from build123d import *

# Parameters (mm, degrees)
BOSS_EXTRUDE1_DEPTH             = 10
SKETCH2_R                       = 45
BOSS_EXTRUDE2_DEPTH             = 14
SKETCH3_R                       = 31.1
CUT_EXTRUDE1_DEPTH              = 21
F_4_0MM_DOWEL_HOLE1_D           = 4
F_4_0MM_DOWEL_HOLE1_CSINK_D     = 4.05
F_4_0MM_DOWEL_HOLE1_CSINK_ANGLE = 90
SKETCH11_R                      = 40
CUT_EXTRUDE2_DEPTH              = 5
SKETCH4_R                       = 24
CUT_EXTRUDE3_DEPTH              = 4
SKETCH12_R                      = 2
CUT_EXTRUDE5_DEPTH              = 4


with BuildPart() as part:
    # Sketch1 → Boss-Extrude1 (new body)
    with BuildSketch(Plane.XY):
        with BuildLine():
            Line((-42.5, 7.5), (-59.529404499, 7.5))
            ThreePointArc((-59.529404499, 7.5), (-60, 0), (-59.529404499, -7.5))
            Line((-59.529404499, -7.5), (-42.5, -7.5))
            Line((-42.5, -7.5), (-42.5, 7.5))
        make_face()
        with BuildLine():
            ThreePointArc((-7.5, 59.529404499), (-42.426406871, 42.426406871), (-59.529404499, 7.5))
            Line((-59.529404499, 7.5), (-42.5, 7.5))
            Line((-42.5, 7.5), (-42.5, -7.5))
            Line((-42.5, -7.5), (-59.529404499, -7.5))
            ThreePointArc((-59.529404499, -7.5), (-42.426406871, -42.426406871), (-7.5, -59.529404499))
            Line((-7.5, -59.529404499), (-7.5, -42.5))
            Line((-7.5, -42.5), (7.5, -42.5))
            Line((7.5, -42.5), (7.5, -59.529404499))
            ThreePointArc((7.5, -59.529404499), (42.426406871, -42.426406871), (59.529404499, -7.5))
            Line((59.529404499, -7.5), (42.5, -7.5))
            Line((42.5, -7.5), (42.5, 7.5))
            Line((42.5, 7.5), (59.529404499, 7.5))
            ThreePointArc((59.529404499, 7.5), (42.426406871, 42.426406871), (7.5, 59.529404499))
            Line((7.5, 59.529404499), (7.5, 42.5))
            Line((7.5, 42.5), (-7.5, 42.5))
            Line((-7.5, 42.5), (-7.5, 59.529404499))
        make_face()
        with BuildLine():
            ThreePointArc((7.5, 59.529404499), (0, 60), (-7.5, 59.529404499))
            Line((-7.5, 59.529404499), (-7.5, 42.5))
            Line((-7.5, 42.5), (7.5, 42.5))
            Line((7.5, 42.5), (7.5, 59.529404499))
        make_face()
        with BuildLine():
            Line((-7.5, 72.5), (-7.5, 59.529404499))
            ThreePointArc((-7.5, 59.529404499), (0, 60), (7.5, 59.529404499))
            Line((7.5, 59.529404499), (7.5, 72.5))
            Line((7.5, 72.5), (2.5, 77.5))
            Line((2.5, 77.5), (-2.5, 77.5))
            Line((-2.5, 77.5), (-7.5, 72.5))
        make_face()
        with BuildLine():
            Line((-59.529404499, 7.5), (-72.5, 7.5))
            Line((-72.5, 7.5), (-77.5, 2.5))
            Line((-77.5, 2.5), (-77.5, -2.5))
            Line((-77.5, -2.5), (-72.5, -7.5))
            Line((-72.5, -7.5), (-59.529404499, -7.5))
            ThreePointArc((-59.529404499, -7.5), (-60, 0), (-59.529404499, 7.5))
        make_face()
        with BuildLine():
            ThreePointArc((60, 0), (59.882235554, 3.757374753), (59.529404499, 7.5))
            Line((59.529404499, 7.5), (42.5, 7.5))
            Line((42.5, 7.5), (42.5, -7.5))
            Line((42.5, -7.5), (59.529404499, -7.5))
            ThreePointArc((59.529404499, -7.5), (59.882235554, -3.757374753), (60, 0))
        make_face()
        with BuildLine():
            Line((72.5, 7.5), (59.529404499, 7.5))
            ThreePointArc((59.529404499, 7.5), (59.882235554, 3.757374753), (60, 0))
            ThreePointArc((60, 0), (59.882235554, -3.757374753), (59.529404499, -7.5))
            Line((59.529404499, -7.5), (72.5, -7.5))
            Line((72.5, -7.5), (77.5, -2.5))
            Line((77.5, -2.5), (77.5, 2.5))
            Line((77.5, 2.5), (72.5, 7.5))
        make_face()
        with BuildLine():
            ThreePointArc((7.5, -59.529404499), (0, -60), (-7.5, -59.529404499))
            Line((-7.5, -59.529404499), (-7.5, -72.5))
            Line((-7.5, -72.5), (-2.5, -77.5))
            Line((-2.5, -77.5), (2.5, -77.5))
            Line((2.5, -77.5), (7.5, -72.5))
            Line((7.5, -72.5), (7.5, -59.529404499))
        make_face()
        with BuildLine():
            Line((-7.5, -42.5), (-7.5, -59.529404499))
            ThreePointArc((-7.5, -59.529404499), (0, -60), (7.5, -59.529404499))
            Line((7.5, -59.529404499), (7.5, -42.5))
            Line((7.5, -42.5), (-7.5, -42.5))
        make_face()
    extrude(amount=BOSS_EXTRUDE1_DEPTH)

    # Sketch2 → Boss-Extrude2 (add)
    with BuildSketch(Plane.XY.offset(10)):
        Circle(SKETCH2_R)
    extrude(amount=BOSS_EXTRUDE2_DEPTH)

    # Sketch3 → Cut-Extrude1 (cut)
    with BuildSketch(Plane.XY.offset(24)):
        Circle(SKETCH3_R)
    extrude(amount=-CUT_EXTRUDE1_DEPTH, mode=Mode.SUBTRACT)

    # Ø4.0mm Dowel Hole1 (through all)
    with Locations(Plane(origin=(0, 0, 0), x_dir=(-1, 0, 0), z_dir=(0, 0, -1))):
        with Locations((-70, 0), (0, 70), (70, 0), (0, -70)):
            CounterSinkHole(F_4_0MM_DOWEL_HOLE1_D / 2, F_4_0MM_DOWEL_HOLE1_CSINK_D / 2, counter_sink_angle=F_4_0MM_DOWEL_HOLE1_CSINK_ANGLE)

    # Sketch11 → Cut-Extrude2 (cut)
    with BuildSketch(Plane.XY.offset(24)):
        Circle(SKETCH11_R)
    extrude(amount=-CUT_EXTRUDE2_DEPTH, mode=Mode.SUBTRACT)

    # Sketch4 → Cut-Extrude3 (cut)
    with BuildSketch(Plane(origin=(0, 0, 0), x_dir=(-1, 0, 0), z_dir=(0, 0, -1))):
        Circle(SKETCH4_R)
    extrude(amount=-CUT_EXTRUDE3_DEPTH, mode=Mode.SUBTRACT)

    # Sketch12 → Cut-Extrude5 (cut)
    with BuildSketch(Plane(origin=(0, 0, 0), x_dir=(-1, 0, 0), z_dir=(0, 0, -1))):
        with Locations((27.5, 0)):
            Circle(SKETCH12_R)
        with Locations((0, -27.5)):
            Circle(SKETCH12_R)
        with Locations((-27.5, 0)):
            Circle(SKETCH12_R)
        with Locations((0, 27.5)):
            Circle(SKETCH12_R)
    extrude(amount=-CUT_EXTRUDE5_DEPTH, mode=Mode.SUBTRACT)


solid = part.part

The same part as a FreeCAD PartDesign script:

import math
import FreeCAD as App
import Part
import Sketcher

V = App.Vector

doc = App.newDocument("Part")
body = doc.addObject("PartDesign::Body", "Body")

# Sketch on XY plane
sketch1 = body.newObject("Sketcher::SketchObject", "Sketch")
sketch1.AttachmentSupport = (doc.getObject("XY_Plane"), [""])
sketch1.MapMode = "FlatFace"
sketch1.addGeometry([
    Part.ArcOfCircle(Part.Circle(V(0, 0, 0), V(0, 0, 1), 60), math.radians(-173), math.radians(-97)),  # 0
    Part.LineSegment(V(-8, -60, 0), V(-8, -72, 0)),  # 1
    Part.LineSegment(V(-8, -72, 0), V(-2, -78, 0)),  # 2
    Part.LineSegment(V(-2, -78, 0), V(2, -78, 0)),  # 3
    Part.LineSegment(V(2, -78, 0), V(8, -72, 0)),  # 4
    Part.LineSegment(V(8, -72, 0), V(8, -60, 0)),  # 5
    Part.ArcOfCircle(Part.Circle(V(0, 0, 0), V(0, 0, 1), 60), math.radians(-83), math.radians(-7)),  # 6
    Part.LineSegment(V(60, -8, 0), V(72, -8, 0)),  # 7
    Part.LineSegment(V(72, -8, 0), V(78, -2, 0)),  # 8
    Part.LineSegment(V(78, -2, 0), V(78, 2, 0)),  # 9
    Part.LineSegment(V(78, 2, 0), V(72, 8, 0)),  # 10
    Part.LineSegment(V(72, 8, 0), V(60, 8, 0)),  # 11
    Part.ArcOfCircle(Part.Circle(V(0, 0, 0), V(0, 0, 1), 60), math.radians(7), math.radians(83)),  # 12
    Part.LineSegment(V(8, 60, 0), V(8, 72, 0)),  # 13
    Part.LineSegment(V(8, 72, 0), V(2, 78, 0)),  # 14
    Part.LineSegment(V(2, 78, 0), V(-2, 78, 0)),  # 15
    Part.LineSegment(V(-2, 78, 0), V(-8, 72, 0)),  # 16
    Part.LineSegment(V(-8, 72, 0), V(-8, 60, 0)),  # 17
    Part.ArcOfCircle(Part.Circle(V(0, 0, 0), V(0, 0, 1), 60), math.radians(97), math.radians(173)),  # 18
    Part.LineSegment(V(-60, 8, 0), V(-72, 8, 0)),  # 19
    Part.LineSegment(V(-72, 8, 0), V(-78, 2, 0)),  # 20
    Part.LineSegment(V(-78, 2, 0), V(-78, -2, 0)),  # 21
    Part.LineSegment(V(-78, -2, 0), V(-72, -8, 0)),  # 22
    Part.LineSegment(V(-72, -8, 0), V(-60, -8, 0)),  # 23
], False)
sketch1.addConstraint([
    Sketcher.Constraint("Coincident", 0, 2, 1, 1),
    Sketcher.Constraint("Coincident", 1, 2, 2, 1),
    Sketcher.Constraint("Coincident", 2, 2, 3, 1),
    Sketcher.Constraint("Coincident", 3, 2, 4, 1),
    Sketcher.Constraint("Coincident", 4, 2, 5, 1),
    Sketcher.Constraint("Coincident", 5, 2, 6, 1),
    Sketcher.Constraint("Coincident", 6, 2, 7, 1),
    Sketcher.Constraint("Coincident", 7, 2, 8, 1),
    Sketcher.Constraint("Coincident", 8, 2, 9, 1),
    Sketcher.Constraint("Coincident", 9, 2, 10, 1),
    Sketcher.Constraint("Coincident", 10, 2, 11, 1),
    Sketcher.Constraint("Coincident", 11, 2, 12, 1),
    Sketcher.Constraint("Coincident", 12, 2, 13, 1),
    Sketcher.Constraint("Coincident", 13, 2, 14, 1),
    Sketcher.Constraint("Coincident", 14, 2, 15, 1),
    Sketcher.Constraint("Coincident", 15, 2, 16, 1),
    Sketcher.Constraint("Coincident", 16, 2, 17, 1),
    Sketcher.Constraint("Coincident", 17, 2, 18, 1),
    Sketcher.Constraint("Coincident", 18, 2, 19, 1),
    Sketcher.Constraint("Coincident", 19, 2, 20, 1),
    Sketcher.Constraint("Coincident", 20, 2, 21, 1),
    Sketcher.Constraint("Coincident", 21, 2, 22, 1),
    Sketcher.Constraint("Coincident", 22, 2, 23, 1),
    Sketcher.Constraint("Coincident", 23, 2, 0, 1),
    Sketcher.Constraint("Vertical", 1),
    Sketcher.Constraint("Horizontal", 3),
    Sketcher.Constraint("Vertical", 5),
    Sketcher.Constraint("Horizontal", 7),
    Sketcher.Constraint("Vertical", 9),
    Sketcher.Constraint("Horizontal", 11),
    Sketcher.Constraint("Vertical", 13),
    Sketcher.Constraint("Horizontal", 15),
    Sketcher.Constraint("Vertical", 17),
    Sketcher.Constraint("Horizontal", 19),
    Sketcher.Constraint("Vertical", 21),
    Sketcher.Constraint("Horizontal", 23),
    Sketcher.Constraint("Coincident", 0, 3, -1, 1),
    Sketcher.Constraint("Coincident", 6, 3, -1, 1),
    Sketcher.Constraint("Coincident", 12, 3, -1, 1),
    Sketcher.Constraint("Coincident", 18, 3, -1, 1),
    Sketcher.Constraint("Equal", 0, 6),
    Sketcher.Constraint("Equal", 6, 12),
    Sketcher.Constraint("Equal", 12, 18),
    Sketcher.Constraint("Symmetric", 1, 2, 13, 2, -1, 1),
    Sketcher.Constraint("Symmetric", 2, 2, 14, 2, -1, 1),
    Sketcher.Constraint("Symmetric", 4, 2, 16, 2, -1, 1),
    Sketcher.Constraint("Symmetric", 7, 2, 19, 2, -1, 1),
    Sketcher.Constraint("Symmetric", 8, 2, 20, 2, -1, 1),
    Sketcher.Constraint("Symmetric", 10, 2, 22, 2, -1, 1),
    Sketcher.Constraint("Symmetric", 1, 2, 4, 2, -2),
    Sketcher.Constraint("Symmetric", 10, 2, 19, 2, -2),
    Sketcher.Constraint("Perpendicular", 2, 4),
    Sketcher.Constraint("Parallel", 4, 8),
    Sketcher.Constraint("Perpendicular", 8, 10),
    Sketcher.Constraint("Perpendicular", 14, 16),
    Sketcher.Constraint("Perpendicular", 20, 22),
    Sketcher.Constraint("Horizontal", 9, 2, 20, 2),
    Sketcher.Constraint("Equal", 23, 1),
    Sketcher.Constraint("Equal", 15, 9),
    Sketcher.Constraint("Equal", 4, 8),
    Sketcher.Constraint("Radius", 0, 60.0),
    Sketcher.Constraint("DistanceX", 3, 1, 3, 2, 5.0),
    Sketcher.Constraint("DistanceX", 1, 2, 2, 2, 5.0),
    Sketcher.Constraint("DistanceY", 1, 2, -1, 1, 72.5),
])
pad1 = body.newObject("PartDesign::Pad", "Pad")
pad1.Profile = sketch1
pad1.Length = 10

# Sketch on XY plane
sketch2 = body.newObject("Sketcher::SketchObject", "Sketch001")
sketch2.AttachmentSupport = (doc.getObject("XY_Plane"), [""])
sketch2.MapMode = "FlatFace"
sketch2.AttachmentOffset = App.Placement(V(0, 0, 10), App.Rotation())
sketch2.addGeometry(Part.Circle(V(0, 0, 0), V(0, 0, 1), 45), False)
sketch2.addConstraint([
    Sketcher.Constraint("Coincident", 0, 3, -1, 1),
    Sketcher.Constraint("Diameter", 0, 90.0),
])
pad2 = body.newObject("PartDesign::Pad", "Pad001")
pad2.Profile = sketch2
pad2.Length = 14

# Sketch on XY plane
sketch3 = body.newObject("Sketcher::SketchObject", "Sketch002")
sketch3.AttachmentSupport = (doc.getObject("XY_Plane"), [""])
sketch3.MapMode = "FlatFace"
sketch3.AttachmentOffset = App.Placement(V(0, 0, 24), App.Rotation())
sketch3.addGeometry(Part.Circle(V(0, 0, 0), V(0, 0, 1), 31), False)
sketch3.addConstraint([
    Sketcher.Constraint("Coincident", 0, 3, -1, 1),
    Sketcher.Constraint("Diameter", 0, 62.2),
])
pocket1 = body.newObject("PartDesign::Pocket", "Pocket")
pocket1.Profile = sketch3
pocket1.Length = 21

# Sketch on XY plane
sketch4 = body.newObject("Sketcher::SketchObject", "Sketch003")
sketch4.AttachmentSupport = (doc.getObject("XY_Plane"), [""])
sketch4.MapMode = "FlatFace"
sketch4.addGeometry([
    Part.Circle(V(70, 0, 0), V(0, 0, 1), 2),
    Part.Circle(V(0, 70, 0), V(0, 0, 1), 2),
    Part.Circle(V(-70, 0, 0), V(0, 0, 1), 2),
    Part.Circle(V(0, -70, 0), V(0, 0, 1), 2),
], False)
sketch4.addConstraint([
    Sketcher.Constraint("Equal", 0, 1),
    Sketcher.Constraint("Equal", 1, 2),
    Sketcher.Constraint("Equal", 2, 3),
    Sketcher.Constraint("Symmetric", 0, 3, 2, 3, -1, 1),
    Sketcher.Constraint("Symmetric", 1, 3, 3, 3, -1, 1),
    Sketcher.Constraint("PointOnObject", 0, 3, -1),
    Sketcher.Constraint("PointOnObject", 1, 3, -2),
    Sketcher.Constraint("Diameter", 0, 4.0),
    Sketcher.Constraint("DistanceX", -1, 1, 0, 3, 70.0),
    Sketcher.Constraint("DistanceY", -1, 1, 1, 3, 70.0),
])
doc.recompute()
hole = body.newObject("PartDesign::Hole", "Hole")
hole.Profile = sketch4
hole.ThreadType = "None"
hole.Diameter = 4
hole.DepthType = "ThroughAll"
hole.HoleCutType = "Countersink"
hole.HoleCutDiameter = 4.05
hole.HoleCutCountersinkAngle = 90
hole.Reversed = True

# Sketch on XY plane
sketch5 = body.newObject("Sketcher::SketchObject", "Sketch004")
sketch5.AttachmentSupport = (doc.getObject("XY_Plane"), [""])
sketch5.MapMode = "FlatFace"
sketch5.AttachmentOffset = App.Placement(V(0, 0, 24), App.Rotation())
sketch5.addGeometry(Part.Circle(V(0, 0, 0), V(0, 0, 1), 40), False)
sketch5.addConstraint([
    Sketcher.Constraint("Coincident", 0, 3, -1, 1),
    Sketcher.Constraint("Diameter", 0, 80.0),
])
pocket2 = body.newObject("PartDesign::Pocket", "Pocket001")
pocket2.Profile = sketch5
pocket2.Length = 5

# Sketch on XY plane
sketch6 = body.newObject("Sketcher::SketchObject", "Sketch005")
sketch6.AttachmentSupport = (doc.getObject("XY_Plane"), [""])
sketch6.MapMode = "FlatFace"
sketch6.addGeometry(Part.Circle(V(0, 0, 0), V(0, 0, 1), 24), False)
sketch6.addConstraint([
    Sketcher.Constraint("Coincident", 0, 3, -1, 1),
    Sketcher.Constraint("Diameter", 0, 48.0),
])
pocket3 = body.newObject("PartDesign::Pocket", "Pocket002")
pocket3.Profile = sketch6
pocket3.Length = 4
pocket3.Reversed = True

# Sketch on XY plane
sketch7 = body.newObject("Sketcher::SketchObject", "Sketch006")
sketch7.AttachmentSupport = (doc.getObject("XY_Plane"), [""])
sketch7.MapMode = "FlatFace"
sketch7.addGeometry([
    Part.Circle(V(-27.5, 0, 0), V(0, 0, 1), 2),
    Part.Circle(V(0, -27.5, 0), V(0, 0, 1), 2),
    Part.Circle(V(27.5, 0, 0), V(0, 0, 1), 2),
    Part.Circle(V(0, 27.5, 0), V(0, 0, 1), 2),
], False)
sketch7.addConstraint([
    Sketcher.Constraint("Equal", 0, 1),
    Sketcher.Constraint("Equal", 1, 2),
    Sketcher.Constraint("Equal", 2, 3),
    Sketcher.Constraint("Symmetric", 0, 3, 2, 3, -1, 1),
    Sketcher.Constraint("Symmetric", 1, 3, 3, 3, -1, 1),
    Sketcher.Constraint("PointOnObject", 0, 3, -1),
    Sketcher.Constraint("PointOnObject", 1, 3, -2),
    Sketcher.Constraint("Diameter", 0, 4.0),
    Sketcher.Constraint("DistanceX", 0, 3, 2, 3, 55.0),
    Sketcher.Constraint("DistanceY", 1, 3, 3, 3, 55.0),
])
pocket4 = body.newObject("PartDesign::Pocket", "Pocket003")
pocket4.Profile = sketch7
pocket4.Length = 4
pocket4.Reversed = True

doc.recompute()
